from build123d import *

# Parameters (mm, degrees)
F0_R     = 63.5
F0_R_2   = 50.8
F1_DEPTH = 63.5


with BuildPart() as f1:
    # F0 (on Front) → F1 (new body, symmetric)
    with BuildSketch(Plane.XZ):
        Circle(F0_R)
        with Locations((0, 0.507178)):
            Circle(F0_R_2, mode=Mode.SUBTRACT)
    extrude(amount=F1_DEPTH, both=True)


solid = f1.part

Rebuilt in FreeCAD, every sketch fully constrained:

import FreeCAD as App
import Part
import Sketcher
Q = App.Units.Quantity

doc = App.newDocument("Part")
body = doc.addObject("PartDesign::Body", "Body")

# Sketch on XZ plane
sketch1 = body.newObject("Sketcher::SketchObject", "Sketch")
sketch1.AttachmentSupport = (doc.getObject("XZ_Plane"), [""])
sketch1.MapMode = "FlatFace"
sketch1.addGeometry(Part.Circle(App.Vector(0, 0, 0), App.Vector(0, 0, 1), 64), False)
sketch1.addGeometry(Part.Circle(App.Vector(0, 1, 0), App.Vector(0, 0, 1), 51), False)
sketch1.addConstraint(Sketcher.Constraint("Coincident", 0, 3, -1, 1))
sketch1.addConstraint(Sketcher.Constraint("PointOnObject", 1, 3, -2))
sketch1.addConstraint(Sketcher.Constraint("Diameter", 0, Q("5 in")))
sketch1.addConstraint(Sketcher.Constraint("Diameter", 1, Q("4 in")))
sketch1.addConstraint(Sketcher.Constraint("DistanceY", -1, 1, 1, 3, 0.507178))
pad1 = body.newObject("PartDesign::Pad", "Pad")
pad1.Profile = sketch1
pad1.Length = Q("5 in")
pad1.Midplane = True

doc.recompute()
